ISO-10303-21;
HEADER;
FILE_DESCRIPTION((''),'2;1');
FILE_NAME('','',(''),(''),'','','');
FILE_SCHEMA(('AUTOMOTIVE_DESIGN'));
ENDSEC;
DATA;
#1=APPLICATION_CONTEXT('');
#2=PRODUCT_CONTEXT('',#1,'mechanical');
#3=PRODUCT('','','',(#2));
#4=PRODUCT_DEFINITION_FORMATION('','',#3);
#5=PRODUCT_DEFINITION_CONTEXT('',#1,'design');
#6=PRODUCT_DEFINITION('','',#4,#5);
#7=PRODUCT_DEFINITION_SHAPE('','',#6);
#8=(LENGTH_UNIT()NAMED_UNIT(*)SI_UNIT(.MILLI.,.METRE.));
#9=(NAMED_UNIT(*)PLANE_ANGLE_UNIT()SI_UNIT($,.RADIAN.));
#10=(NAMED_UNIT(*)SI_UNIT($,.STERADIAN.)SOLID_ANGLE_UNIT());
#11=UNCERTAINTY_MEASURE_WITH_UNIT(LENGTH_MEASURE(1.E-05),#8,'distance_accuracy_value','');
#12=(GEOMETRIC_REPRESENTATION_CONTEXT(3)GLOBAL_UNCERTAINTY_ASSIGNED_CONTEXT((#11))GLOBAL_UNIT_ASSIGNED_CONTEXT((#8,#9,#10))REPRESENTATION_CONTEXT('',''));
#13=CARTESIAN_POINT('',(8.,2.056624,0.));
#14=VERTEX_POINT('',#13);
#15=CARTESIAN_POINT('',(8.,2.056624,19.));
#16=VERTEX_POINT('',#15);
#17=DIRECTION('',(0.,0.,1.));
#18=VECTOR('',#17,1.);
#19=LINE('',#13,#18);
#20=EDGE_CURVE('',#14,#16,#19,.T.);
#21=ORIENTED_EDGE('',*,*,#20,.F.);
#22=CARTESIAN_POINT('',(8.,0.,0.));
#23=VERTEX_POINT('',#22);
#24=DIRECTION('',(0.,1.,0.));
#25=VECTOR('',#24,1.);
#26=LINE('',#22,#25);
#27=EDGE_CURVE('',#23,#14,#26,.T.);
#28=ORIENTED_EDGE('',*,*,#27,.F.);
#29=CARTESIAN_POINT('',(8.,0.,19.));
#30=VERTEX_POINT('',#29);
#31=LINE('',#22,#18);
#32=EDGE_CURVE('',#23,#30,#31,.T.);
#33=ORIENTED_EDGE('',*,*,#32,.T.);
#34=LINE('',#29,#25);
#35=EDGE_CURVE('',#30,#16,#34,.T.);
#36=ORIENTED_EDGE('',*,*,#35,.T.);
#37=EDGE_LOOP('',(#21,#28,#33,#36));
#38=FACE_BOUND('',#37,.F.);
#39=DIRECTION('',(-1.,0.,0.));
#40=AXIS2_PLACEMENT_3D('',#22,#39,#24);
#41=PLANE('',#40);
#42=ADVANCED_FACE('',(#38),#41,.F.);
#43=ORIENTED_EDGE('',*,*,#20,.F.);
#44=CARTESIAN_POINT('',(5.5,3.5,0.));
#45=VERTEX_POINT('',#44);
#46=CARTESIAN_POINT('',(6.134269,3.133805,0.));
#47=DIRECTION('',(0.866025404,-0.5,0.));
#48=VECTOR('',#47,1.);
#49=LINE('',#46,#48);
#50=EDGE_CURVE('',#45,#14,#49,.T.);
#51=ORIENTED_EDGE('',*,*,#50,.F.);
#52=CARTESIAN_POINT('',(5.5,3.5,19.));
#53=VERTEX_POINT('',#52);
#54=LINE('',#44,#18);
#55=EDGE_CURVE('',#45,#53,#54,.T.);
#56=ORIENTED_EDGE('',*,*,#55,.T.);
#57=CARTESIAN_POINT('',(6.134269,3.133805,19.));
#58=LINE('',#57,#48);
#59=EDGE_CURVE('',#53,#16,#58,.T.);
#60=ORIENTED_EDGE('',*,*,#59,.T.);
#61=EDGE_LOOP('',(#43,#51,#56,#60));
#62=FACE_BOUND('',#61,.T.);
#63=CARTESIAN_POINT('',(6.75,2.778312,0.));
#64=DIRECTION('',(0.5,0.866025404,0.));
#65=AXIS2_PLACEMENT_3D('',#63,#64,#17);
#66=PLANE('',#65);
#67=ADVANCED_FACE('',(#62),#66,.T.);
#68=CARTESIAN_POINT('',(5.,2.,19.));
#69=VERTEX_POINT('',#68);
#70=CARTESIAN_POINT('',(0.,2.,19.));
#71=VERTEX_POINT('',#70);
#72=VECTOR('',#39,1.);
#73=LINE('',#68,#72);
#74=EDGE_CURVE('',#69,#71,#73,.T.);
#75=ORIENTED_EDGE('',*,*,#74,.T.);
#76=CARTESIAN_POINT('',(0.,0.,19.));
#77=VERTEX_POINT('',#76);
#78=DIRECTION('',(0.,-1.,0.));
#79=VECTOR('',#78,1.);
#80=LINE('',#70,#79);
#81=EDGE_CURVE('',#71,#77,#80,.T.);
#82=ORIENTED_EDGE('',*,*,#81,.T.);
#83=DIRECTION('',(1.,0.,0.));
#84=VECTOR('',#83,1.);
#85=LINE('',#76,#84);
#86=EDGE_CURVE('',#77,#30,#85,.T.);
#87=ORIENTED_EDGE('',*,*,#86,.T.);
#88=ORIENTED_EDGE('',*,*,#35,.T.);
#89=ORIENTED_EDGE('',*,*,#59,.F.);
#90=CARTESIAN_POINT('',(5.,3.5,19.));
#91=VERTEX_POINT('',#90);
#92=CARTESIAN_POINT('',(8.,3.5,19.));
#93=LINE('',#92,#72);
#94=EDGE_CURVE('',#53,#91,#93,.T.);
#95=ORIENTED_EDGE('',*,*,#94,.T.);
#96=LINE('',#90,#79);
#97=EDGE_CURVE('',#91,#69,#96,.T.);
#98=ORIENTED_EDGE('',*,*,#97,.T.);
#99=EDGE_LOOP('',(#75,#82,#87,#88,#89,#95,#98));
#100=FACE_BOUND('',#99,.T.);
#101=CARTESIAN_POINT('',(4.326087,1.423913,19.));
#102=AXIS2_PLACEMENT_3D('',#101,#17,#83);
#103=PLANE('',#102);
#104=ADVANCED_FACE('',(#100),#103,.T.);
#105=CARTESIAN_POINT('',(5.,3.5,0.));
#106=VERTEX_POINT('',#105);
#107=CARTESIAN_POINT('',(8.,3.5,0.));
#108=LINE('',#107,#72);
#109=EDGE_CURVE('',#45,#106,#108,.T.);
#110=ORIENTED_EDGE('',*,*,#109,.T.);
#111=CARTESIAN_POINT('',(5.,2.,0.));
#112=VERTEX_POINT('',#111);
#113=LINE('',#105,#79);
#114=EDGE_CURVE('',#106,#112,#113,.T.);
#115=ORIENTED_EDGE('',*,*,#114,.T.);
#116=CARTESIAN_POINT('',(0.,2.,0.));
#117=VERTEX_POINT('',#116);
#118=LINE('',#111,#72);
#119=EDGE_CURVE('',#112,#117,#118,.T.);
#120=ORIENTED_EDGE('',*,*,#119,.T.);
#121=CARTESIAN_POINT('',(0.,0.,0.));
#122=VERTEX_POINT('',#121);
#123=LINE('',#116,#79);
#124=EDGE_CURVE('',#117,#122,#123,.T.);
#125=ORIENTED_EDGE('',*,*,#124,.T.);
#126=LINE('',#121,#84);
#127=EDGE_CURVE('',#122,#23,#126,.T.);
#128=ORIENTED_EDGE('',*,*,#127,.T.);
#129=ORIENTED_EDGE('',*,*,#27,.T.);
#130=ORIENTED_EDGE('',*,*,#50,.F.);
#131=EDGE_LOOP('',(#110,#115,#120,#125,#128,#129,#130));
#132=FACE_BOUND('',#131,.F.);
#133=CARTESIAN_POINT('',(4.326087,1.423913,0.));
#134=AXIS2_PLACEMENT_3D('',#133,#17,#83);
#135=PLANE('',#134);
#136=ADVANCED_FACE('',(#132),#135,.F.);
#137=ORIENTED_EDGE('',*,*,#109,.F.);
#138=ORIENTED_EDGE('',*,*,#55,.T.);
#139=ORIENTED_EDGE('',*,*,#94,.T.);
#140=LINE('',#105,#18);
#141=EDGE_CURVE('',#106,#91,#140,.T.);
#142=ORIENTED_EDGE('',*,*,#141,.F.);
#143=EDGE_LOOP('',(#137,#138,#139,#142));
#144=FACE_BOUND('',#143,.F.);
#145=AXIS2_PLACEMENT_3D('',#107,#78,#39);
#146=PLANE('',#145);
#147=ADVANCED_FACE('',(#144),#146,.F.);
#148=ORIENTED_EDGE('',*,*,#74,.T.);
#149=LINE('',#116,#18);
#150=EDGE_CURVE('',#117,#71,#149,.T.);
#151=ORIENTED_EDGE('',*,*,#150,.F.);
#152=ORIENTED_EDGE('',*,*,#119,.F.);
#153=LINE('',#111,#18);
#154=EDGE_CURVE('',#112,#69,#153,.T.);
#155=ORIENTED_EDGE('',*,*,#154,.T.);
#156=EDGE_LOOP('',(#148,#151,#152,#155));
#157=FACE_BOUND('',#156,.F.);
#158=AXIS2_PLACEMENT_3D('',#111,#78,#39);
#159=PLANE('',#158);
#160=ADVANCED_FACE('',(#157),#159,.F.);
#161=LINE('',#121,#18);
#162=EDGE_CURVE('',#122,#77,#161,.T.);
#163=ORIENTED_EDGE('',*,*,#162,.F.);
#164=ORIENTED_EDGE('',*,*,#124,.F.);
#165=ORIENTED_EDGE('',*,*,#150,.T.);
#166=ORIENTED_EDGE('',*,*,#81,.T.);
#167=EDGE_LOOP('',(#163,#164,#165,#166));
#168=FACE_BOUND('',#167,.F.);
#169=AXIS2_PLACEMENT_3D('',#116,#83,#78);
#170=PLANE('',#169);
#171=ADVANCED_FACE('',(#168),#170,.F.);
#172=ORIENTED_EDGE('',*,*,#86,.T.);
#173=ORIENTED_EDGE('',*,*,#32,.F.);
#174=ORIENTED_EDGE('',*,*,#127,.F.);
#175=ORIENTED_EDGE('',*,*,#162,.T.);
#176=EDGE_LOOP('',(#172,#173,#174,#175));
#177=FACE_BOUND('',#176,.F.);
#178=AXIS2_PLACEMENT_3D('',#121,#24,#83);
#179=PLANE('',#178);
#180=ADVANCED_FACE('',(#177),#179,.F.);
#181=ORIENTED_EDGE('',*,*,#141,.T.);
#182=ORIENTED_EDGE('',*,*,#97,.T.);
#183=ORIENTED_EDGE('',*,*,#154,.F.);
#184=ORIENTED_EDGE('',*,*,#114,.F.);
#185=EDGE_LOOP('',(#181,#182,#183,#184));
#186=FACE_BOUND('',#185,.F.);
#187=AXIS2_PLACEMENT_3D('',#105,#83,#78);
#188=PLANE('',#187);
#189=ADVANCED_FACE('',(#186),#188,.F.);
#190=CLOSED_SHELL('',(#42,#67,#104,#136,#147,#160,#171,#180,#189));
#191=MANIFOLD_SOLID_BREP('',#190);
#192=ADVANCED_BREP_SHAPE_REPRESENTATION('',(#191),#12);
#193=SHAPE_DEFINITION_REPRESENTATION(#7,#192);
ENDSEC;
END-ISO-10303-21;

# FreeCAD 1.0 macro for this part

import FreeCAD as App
import Part
import Sketcher
from FreeCAD import Vector


def edges_at(feature, points):
    """Names of the edges that pass closest to the given points."""
    edges = feature.Shape.Edges
    near = lambda p: min(range(len(edges)), key=lambda i: edges[i].distToShape(Part.Vertex(*p))[0])
    return sorted({f"Edge{near(p) + 1}" for p in points})


def add_polygon(sketch, points):
    """Adds a closed chain of lines whose ends are joined by coincident constraints."""
    first, n = sketch.GeometryCount, len(points)
    for a, b in zip(points, points[1:] + points[:1]):
        sketch.addGeometry(Part.LineSegment(App.Vector(*a, 0), App.Vector(*b, 0)), False)
    for i in range(n):
        sketch.addConstraint(Sketcher.Constraint("Coincident", first + i, 2, first + (i + 1) % n, 1))

doc = App.newDocument("Part")
body = doc.addObject("PartDesign::Body", "Body")

# Sketch on XY plane
sketch1 = body.newObject("Sketcher::SketchObject", "Sketch")
sketch1.AttachmentSupport = (doc.getObject("XY_Plane"), [""])
sketch1.MapMode = "FlatFace"
add_polygon(sketch1, [(0, 2), (0, 0), (8, 0), (8, 3.5), (5, 3.5), (5, 2)])  # lines 0-5
sketch1.addConstraint(Sketcher.Constraint("Vertical", 0))
sketch1.addConstraint(Sketcher.Constraint("Horizontal", 1))
sketch1.addConstraint(Sketcher.Constraint("Vertical", 2))
sketch1.addConstraint(Sketcher.Constraint("Horizontal", 3))
sketch1.addConstraint(Sketcher.Constraint("Vertical", 4))
sketch1.addConstraint(Sketcher.Constraint("Horizontal", 5))
sketch1.addConstraint(Sketcher.Constraint("Coincident", 0, 2, -1, 1))
sketch1.addConstraint(Sketcher.Constraint("DistanceX", 1, 1, 1, 2, 8.0))
sketch1.addConstraint(Sketcher.Constraint("DistanceX", 3, 2, 3, 1, 3.0))
sketch1.addConstraint(Sketcher.Constraint("DistanceY", 0, 2, 0, 1, 2.0))
sketch1.addConstraint(Sketcher.Constraint("DistanceY", 2, 1, 2, 2, 3.5))
pad1 = body.newObject("PartDesign::Pad", "Pad")
pad1.Profile = sketch1
pad1.Length = 19
doc.recompute()

chamfer = body.newObject("PartDesign::Chamfer", "Chamfer")
chamfer.Base = (pad1, edges_at(pad1, [(8, 3.5, 9.5)]))
chamfer.ChamferType = "Two distances"
chamfer.Size = 2.5
chamfer.Size2 = 1.443376
chamfer.FlipDirection = True

doc.recompute()
